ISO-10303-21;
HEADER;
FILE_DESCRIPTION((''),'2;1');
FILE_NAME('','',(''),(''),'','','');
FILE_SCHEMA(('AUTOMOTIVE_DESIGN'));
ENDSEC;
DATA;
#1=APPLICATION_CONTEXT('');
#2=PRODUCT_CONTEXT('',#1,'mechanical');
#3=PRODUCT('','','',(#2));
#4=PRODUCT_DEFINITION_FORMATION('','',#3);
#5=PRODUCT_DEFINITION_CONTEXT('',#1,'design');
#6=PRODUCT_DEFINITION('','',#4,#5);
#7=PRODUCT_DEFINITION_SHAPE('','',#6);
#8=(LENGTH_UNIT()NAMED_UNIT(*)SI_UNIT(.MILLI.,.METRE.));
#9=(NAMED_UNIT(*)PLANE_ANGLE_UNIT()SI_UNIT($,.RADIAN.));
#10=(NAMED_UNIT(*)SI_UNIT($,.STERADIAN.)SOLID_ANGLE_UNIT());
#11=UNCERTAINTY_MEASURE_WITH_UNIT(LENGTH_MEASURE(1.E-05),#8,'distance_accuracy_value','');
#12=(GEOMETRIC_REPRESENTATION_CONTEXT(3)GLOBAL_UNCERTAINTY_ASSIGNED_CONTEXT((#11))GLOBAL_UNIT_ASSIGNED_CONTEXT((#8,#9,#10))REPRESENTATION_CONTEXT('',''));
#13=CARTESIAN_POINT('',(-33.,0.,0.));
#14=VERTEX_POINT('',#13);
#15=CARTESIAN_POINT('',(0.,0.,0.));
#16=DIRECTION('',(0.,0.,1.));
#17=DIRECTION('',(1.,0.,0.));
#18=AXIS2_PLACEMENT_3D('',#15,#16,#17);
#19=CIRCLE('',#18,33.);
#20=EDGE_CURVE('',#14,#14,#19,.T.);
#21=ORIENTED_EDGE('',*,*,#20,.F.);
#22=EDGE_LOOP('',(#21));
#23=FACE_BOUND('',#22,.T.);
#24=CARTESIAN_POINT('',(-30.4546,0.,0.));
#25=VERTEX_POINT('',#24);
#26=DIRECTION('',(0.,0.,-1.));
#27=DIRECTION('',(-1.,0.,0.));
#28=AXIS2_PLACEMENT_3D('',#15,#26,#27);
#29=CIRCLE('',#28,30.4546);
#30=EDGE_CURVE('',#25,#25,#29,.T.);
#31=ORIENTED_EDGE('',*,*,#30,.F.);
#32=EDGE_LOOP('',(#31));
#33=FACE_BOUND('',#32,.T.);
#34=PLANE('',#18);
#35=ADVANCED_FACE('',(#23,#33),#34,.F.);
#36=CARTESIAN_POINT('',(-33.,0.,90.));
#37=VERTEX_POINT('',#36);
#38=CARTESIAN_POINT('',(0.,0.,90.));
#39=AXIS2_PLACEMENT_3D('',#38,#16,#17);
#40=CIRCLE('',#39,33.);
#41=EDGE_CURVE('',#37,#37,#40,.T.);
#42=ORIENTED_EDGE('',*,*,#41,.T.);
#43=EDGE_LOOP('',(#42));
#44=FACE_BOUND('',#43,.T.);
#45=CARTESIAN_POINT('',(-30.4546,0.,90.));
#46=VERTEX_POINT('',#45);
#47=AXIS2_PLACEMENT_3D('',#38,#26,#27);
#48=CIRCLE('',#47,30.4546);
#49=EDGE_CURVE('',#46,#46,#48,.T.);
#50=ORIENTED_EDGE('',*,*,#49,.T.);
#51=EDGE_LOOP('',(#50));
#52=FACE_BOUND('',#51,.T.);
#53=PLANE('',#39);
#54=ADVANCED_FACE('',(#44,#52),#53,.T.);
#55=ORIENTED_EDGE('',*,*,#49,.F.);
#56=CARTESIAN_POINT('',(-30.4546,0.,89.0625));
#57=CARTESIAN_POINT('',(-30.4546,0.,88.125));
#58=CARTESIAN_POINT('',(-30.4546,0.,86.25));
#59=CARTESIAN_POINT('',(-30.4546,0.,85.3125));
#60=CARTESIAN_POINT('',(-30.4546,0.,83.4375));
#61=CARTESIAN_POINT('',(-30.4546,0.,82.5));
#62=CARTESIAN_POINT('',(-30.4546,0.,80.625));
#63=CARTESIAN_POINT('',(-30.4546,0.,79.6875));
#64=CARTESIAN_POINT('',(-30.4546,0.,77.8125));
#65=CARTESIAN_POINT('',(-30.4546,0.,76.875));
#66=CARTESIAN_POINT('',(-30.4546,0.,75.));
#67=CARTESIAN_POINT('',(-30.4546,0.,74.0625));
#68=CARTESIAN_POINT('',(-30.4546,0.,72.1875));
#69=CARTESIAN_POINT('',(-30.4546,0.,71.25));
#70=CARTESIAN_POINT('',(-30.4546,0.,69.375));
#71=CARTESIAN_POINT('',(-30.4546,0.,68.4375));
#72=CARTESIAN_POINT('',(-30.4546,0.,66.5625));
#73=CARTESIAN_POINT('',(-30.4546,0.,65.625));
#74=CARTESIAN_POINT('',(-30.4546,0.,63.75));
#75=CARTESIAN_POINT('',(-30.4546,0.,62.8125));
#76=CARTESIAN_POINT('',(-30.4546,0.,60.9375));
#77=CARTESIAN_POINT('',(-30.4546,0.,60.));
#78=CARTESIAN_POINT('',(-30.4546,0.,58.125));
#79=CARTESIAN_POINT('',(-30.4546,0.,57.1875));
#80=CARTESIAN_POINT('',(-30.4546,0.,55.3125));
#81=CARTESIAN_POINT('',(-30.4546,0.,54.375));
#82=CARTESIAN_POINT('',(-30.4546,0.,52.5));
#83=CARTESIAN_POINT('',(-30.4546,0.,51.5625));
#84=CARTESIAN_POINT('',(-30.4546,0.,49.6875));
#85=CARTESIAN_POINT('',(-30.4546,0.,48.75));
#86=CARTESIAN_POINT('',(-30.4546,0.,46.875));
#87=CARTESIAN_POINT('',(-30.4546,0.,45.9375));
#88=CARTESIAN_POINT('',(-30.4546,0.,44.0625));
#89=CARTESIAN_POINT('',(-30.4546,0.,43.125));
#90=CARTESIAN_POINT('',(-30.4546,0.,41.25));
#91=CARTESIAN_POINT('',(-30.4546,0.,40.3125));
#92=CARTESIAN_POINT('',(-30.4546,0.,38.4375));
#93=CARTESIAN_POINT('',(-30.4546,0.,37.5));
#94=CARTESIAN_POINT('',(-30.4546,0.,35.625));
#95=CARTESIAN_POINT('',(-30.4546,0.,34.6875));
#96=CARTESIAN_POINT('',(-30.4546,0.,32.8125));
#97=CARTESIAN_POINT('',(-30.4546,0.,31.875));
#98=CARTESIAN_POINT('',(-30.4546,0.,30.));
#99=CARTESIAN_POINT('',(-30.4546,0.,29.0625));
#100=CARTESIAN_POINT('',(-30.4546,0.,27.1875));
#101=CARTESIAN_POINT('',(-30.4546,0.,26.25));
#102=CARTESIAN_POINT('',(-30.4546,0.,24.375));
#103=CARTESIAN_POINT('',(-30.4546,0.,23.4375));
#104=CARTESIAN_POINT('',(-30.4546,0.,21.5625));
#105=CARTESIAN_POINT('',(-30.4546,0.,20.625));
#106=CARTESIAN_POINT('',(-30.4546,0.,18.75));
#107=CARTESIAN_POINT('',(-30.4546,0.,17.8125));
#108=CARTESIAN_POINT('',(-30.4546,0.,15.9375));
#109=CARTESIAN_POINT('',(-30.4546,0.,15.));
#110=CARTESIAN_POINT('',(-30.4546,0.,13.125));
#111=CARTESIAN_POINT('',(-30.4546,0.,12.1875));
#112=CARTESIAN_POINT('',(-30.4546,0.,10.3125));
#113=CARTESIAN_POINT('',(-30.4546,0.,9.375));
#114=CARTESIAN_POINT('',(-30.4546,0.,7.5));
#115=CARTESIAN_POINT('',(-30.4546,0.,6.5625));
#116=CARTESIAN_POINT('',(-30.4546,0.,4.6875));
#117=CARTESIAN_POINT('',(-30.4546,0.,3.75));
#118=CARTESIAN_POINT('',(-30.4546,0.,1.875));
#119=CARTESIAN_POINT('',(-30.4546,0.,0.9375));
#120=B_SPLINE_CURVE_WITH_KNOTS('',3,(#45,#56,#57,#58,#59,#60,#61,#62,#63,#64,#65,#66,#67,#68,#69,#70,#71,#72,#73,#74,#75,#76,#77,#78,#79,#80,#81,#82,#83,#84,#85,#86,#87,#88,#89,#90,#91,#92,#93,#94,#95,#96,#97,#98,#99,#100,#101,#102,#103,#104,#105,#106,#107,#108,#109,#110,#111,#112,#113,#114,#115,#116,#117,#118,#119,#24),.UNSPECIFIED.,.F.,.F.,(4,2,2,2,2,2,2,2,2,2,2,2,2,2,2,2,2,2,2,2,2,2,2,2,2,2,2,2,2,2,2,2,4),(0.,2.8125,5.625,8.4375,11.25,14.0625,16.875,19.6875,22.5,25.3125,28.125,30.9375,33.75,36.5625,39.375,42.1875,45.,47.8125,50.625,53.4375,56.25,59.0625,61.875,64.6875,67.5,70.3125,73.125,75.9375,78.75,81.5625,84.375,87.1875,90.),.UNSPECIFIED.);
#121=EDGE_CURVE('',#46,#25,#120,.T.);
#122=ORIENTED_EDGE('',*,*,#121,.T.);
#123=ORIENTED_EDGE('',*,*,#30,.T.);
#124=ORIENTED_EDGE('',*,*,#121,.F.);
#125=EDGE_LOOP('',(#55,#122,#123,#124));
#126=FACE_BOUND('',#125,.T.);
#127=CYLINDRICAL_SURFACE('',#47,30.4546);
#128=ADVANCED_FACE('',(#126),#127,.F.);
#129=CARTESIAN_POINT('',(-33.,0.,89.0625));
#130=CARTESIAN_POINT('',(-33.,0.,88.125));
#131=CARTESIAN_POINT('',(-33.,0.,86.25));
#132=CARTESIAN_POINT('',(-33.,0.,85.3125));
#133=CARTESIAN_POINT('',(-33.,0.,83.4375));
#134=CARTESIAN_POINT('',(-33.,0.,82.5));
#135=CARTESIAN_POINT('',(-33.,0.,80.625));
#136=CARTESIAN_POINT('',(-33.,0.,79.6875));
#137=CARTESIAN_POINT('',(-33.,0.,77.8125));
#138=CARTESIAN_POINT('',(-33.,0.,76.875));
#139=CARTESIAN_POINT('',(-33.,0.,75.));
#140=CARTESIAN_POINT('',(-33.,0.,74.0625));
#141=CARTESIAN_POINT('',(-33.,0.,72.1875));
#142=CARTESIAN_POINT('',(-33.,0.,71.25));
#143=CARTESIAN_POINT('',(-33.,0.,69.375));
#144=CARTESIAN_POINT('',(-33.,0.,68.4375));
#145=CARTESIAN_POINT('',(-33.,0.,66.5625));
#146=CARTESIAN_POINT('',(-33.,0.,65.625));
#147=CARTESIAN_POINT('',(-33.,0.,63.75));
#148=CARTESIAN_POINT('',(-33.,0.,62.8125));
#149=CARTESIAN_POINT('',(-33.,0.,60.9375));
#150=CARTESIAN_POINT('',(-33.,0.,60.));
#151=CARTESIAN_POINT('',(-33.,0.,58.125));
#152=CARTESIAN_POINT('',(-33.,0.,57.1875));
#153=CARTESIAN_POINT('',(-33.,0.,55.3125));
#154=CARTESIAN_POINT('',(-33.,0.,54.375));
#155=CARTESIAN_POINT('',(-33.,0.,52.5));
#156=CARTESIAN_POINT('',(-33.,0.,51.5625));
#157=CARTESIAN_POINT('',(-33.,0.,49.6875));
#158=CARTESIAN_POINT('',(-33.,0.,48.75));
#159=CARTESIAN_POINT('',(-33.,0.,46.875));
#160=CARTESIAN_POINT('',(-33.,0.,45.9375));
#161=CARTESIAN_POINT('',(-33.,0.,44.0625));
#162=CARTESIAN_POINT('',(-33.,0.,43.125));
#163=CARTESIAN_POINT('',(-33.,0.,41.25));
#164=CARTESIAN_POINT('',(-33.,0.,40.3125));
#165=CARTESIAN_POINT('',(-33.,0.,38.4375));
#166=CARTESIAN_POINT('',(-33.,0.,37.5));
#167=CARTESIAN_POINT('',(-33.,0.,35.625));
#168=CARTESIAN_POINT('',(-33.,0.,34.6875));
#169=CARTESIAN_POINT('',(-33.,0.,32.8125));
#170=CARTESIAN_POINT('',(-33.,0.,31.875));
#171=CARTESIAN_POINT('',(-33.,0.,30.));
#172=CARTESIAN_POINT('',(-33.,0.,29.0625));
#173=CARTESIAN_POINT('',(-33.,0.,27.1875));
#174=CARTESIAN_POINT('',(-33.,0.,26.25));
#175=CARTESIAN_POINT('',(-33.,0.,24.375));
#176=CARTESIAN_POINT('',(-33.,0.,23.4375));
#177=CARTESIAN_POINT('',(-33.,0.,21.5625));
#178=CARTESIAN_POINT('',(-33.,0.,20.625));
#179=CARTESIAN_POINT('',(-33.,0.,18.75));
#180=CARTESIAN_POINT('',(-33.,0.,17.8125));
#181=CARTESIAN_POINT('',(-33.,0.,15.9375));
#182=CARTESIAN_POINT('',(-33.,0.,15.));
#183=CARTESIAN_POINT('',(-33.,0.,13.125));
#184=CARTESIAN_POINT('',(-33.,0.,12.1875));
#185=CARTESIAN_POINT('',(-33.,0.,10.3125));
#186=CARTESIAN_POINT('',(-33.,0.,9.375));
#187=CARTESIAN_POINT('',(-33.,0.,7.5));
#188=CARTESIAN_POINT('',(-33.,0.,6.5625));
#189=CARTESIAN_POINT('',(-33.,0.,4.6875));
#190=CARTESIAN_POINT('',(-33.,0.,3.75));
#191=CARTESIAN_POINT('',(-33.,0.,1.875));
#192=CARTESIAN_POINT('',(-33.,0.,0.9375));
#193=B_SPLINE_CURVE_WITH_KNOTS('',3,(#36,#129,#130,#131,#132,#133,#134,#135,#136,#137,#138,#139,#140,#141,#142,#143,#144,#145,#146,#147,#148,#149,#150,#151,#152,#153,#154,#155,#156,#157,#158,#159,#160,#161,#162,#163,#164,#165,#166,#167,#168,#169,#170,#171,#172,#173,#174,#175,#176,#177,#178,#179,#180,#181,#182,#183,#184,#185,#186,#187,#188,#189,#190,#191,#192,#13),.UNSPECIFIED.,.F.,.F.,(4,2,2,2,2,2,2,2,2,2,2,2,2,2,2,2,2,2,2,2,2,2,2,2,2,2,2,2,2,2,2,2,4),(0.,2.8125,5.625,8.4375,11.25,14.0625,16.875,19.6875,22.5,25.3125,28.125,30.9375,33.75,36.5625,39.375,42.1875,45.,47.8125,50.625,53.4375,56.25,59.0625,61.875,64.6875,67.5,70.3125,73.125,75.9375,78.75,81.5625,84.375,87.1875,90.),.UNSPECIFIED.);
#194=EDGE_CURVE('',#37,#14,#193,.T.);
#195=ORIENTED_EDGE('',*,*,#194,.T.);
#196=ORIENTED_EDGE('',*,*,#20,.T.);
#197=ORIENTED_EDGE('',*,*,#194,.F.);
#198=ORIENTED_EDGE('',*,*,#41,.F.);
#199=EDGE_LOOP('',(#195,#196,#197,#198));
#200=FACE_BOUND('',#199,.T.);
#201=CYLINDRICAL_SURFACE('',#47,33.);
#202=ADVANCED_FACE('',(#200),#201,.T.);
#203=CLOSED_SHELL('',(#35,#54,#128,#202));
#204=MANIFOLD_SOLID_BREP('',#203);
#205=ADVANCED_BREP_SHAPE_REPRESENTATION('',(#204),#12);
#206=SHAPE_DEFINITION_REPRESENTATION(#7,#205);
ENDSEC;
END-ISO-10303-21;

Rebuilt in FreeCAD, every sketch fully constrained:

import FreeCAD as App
import Part
import Sketcher
from FreeCAD import Vector
Q = App.Units.Quantity

doc = App.newDocument("Part")
body = doc.addObject("PartDesign::Body", "Body")

sketch1 = body.newObject("Sketcher::SketchObject", "Sketch")
sketch1.AttachmentSupport = (doc.getObject("XY_Plane"), [""])
sketch1.MapMode = "FlatFace"
sketch1.addGeometry(Part.Circle(Vector(0, 0, 0), Vector(0, 0, 1), 33), False)
sketch1.addConstraint([
    Sketcher.Constraint("Coincident", 0, 3, -1, 1),
    Sketcher.Constraint("Diameter", 0, Q("66 mm")),
])
pad1 = body.newObject("PartDesign::Pad", "Pad")
pad1.Profile = sketch1
pad1.Length = 90

sketch2 = body.newObject("Sketcher::SketchObject", "Sketch001")
sketch2.AttachmentSupport = (doc.getObject("XY_Plane"), [""])
sketch2.MapMode = "FlatFace"
sketch2.addGeometry(Part.Circle(Vector(0, 0, 0), Vector(0, 0, 1), 30), False)
sketch2.addConstraint([
    Sketcher.Constraint("Coincident", 0, 3, -1, 1),
    Sketcher.Constraint("Diameter", 0, Q("60.9092 mm")),
])
pocket1 = body.newObject("PartDesign::Pocket", "Pocket")
pocket1.Profile = sketch2
pocket1.Length = 90
pocket1.Reversed = True

doc.recompute()
